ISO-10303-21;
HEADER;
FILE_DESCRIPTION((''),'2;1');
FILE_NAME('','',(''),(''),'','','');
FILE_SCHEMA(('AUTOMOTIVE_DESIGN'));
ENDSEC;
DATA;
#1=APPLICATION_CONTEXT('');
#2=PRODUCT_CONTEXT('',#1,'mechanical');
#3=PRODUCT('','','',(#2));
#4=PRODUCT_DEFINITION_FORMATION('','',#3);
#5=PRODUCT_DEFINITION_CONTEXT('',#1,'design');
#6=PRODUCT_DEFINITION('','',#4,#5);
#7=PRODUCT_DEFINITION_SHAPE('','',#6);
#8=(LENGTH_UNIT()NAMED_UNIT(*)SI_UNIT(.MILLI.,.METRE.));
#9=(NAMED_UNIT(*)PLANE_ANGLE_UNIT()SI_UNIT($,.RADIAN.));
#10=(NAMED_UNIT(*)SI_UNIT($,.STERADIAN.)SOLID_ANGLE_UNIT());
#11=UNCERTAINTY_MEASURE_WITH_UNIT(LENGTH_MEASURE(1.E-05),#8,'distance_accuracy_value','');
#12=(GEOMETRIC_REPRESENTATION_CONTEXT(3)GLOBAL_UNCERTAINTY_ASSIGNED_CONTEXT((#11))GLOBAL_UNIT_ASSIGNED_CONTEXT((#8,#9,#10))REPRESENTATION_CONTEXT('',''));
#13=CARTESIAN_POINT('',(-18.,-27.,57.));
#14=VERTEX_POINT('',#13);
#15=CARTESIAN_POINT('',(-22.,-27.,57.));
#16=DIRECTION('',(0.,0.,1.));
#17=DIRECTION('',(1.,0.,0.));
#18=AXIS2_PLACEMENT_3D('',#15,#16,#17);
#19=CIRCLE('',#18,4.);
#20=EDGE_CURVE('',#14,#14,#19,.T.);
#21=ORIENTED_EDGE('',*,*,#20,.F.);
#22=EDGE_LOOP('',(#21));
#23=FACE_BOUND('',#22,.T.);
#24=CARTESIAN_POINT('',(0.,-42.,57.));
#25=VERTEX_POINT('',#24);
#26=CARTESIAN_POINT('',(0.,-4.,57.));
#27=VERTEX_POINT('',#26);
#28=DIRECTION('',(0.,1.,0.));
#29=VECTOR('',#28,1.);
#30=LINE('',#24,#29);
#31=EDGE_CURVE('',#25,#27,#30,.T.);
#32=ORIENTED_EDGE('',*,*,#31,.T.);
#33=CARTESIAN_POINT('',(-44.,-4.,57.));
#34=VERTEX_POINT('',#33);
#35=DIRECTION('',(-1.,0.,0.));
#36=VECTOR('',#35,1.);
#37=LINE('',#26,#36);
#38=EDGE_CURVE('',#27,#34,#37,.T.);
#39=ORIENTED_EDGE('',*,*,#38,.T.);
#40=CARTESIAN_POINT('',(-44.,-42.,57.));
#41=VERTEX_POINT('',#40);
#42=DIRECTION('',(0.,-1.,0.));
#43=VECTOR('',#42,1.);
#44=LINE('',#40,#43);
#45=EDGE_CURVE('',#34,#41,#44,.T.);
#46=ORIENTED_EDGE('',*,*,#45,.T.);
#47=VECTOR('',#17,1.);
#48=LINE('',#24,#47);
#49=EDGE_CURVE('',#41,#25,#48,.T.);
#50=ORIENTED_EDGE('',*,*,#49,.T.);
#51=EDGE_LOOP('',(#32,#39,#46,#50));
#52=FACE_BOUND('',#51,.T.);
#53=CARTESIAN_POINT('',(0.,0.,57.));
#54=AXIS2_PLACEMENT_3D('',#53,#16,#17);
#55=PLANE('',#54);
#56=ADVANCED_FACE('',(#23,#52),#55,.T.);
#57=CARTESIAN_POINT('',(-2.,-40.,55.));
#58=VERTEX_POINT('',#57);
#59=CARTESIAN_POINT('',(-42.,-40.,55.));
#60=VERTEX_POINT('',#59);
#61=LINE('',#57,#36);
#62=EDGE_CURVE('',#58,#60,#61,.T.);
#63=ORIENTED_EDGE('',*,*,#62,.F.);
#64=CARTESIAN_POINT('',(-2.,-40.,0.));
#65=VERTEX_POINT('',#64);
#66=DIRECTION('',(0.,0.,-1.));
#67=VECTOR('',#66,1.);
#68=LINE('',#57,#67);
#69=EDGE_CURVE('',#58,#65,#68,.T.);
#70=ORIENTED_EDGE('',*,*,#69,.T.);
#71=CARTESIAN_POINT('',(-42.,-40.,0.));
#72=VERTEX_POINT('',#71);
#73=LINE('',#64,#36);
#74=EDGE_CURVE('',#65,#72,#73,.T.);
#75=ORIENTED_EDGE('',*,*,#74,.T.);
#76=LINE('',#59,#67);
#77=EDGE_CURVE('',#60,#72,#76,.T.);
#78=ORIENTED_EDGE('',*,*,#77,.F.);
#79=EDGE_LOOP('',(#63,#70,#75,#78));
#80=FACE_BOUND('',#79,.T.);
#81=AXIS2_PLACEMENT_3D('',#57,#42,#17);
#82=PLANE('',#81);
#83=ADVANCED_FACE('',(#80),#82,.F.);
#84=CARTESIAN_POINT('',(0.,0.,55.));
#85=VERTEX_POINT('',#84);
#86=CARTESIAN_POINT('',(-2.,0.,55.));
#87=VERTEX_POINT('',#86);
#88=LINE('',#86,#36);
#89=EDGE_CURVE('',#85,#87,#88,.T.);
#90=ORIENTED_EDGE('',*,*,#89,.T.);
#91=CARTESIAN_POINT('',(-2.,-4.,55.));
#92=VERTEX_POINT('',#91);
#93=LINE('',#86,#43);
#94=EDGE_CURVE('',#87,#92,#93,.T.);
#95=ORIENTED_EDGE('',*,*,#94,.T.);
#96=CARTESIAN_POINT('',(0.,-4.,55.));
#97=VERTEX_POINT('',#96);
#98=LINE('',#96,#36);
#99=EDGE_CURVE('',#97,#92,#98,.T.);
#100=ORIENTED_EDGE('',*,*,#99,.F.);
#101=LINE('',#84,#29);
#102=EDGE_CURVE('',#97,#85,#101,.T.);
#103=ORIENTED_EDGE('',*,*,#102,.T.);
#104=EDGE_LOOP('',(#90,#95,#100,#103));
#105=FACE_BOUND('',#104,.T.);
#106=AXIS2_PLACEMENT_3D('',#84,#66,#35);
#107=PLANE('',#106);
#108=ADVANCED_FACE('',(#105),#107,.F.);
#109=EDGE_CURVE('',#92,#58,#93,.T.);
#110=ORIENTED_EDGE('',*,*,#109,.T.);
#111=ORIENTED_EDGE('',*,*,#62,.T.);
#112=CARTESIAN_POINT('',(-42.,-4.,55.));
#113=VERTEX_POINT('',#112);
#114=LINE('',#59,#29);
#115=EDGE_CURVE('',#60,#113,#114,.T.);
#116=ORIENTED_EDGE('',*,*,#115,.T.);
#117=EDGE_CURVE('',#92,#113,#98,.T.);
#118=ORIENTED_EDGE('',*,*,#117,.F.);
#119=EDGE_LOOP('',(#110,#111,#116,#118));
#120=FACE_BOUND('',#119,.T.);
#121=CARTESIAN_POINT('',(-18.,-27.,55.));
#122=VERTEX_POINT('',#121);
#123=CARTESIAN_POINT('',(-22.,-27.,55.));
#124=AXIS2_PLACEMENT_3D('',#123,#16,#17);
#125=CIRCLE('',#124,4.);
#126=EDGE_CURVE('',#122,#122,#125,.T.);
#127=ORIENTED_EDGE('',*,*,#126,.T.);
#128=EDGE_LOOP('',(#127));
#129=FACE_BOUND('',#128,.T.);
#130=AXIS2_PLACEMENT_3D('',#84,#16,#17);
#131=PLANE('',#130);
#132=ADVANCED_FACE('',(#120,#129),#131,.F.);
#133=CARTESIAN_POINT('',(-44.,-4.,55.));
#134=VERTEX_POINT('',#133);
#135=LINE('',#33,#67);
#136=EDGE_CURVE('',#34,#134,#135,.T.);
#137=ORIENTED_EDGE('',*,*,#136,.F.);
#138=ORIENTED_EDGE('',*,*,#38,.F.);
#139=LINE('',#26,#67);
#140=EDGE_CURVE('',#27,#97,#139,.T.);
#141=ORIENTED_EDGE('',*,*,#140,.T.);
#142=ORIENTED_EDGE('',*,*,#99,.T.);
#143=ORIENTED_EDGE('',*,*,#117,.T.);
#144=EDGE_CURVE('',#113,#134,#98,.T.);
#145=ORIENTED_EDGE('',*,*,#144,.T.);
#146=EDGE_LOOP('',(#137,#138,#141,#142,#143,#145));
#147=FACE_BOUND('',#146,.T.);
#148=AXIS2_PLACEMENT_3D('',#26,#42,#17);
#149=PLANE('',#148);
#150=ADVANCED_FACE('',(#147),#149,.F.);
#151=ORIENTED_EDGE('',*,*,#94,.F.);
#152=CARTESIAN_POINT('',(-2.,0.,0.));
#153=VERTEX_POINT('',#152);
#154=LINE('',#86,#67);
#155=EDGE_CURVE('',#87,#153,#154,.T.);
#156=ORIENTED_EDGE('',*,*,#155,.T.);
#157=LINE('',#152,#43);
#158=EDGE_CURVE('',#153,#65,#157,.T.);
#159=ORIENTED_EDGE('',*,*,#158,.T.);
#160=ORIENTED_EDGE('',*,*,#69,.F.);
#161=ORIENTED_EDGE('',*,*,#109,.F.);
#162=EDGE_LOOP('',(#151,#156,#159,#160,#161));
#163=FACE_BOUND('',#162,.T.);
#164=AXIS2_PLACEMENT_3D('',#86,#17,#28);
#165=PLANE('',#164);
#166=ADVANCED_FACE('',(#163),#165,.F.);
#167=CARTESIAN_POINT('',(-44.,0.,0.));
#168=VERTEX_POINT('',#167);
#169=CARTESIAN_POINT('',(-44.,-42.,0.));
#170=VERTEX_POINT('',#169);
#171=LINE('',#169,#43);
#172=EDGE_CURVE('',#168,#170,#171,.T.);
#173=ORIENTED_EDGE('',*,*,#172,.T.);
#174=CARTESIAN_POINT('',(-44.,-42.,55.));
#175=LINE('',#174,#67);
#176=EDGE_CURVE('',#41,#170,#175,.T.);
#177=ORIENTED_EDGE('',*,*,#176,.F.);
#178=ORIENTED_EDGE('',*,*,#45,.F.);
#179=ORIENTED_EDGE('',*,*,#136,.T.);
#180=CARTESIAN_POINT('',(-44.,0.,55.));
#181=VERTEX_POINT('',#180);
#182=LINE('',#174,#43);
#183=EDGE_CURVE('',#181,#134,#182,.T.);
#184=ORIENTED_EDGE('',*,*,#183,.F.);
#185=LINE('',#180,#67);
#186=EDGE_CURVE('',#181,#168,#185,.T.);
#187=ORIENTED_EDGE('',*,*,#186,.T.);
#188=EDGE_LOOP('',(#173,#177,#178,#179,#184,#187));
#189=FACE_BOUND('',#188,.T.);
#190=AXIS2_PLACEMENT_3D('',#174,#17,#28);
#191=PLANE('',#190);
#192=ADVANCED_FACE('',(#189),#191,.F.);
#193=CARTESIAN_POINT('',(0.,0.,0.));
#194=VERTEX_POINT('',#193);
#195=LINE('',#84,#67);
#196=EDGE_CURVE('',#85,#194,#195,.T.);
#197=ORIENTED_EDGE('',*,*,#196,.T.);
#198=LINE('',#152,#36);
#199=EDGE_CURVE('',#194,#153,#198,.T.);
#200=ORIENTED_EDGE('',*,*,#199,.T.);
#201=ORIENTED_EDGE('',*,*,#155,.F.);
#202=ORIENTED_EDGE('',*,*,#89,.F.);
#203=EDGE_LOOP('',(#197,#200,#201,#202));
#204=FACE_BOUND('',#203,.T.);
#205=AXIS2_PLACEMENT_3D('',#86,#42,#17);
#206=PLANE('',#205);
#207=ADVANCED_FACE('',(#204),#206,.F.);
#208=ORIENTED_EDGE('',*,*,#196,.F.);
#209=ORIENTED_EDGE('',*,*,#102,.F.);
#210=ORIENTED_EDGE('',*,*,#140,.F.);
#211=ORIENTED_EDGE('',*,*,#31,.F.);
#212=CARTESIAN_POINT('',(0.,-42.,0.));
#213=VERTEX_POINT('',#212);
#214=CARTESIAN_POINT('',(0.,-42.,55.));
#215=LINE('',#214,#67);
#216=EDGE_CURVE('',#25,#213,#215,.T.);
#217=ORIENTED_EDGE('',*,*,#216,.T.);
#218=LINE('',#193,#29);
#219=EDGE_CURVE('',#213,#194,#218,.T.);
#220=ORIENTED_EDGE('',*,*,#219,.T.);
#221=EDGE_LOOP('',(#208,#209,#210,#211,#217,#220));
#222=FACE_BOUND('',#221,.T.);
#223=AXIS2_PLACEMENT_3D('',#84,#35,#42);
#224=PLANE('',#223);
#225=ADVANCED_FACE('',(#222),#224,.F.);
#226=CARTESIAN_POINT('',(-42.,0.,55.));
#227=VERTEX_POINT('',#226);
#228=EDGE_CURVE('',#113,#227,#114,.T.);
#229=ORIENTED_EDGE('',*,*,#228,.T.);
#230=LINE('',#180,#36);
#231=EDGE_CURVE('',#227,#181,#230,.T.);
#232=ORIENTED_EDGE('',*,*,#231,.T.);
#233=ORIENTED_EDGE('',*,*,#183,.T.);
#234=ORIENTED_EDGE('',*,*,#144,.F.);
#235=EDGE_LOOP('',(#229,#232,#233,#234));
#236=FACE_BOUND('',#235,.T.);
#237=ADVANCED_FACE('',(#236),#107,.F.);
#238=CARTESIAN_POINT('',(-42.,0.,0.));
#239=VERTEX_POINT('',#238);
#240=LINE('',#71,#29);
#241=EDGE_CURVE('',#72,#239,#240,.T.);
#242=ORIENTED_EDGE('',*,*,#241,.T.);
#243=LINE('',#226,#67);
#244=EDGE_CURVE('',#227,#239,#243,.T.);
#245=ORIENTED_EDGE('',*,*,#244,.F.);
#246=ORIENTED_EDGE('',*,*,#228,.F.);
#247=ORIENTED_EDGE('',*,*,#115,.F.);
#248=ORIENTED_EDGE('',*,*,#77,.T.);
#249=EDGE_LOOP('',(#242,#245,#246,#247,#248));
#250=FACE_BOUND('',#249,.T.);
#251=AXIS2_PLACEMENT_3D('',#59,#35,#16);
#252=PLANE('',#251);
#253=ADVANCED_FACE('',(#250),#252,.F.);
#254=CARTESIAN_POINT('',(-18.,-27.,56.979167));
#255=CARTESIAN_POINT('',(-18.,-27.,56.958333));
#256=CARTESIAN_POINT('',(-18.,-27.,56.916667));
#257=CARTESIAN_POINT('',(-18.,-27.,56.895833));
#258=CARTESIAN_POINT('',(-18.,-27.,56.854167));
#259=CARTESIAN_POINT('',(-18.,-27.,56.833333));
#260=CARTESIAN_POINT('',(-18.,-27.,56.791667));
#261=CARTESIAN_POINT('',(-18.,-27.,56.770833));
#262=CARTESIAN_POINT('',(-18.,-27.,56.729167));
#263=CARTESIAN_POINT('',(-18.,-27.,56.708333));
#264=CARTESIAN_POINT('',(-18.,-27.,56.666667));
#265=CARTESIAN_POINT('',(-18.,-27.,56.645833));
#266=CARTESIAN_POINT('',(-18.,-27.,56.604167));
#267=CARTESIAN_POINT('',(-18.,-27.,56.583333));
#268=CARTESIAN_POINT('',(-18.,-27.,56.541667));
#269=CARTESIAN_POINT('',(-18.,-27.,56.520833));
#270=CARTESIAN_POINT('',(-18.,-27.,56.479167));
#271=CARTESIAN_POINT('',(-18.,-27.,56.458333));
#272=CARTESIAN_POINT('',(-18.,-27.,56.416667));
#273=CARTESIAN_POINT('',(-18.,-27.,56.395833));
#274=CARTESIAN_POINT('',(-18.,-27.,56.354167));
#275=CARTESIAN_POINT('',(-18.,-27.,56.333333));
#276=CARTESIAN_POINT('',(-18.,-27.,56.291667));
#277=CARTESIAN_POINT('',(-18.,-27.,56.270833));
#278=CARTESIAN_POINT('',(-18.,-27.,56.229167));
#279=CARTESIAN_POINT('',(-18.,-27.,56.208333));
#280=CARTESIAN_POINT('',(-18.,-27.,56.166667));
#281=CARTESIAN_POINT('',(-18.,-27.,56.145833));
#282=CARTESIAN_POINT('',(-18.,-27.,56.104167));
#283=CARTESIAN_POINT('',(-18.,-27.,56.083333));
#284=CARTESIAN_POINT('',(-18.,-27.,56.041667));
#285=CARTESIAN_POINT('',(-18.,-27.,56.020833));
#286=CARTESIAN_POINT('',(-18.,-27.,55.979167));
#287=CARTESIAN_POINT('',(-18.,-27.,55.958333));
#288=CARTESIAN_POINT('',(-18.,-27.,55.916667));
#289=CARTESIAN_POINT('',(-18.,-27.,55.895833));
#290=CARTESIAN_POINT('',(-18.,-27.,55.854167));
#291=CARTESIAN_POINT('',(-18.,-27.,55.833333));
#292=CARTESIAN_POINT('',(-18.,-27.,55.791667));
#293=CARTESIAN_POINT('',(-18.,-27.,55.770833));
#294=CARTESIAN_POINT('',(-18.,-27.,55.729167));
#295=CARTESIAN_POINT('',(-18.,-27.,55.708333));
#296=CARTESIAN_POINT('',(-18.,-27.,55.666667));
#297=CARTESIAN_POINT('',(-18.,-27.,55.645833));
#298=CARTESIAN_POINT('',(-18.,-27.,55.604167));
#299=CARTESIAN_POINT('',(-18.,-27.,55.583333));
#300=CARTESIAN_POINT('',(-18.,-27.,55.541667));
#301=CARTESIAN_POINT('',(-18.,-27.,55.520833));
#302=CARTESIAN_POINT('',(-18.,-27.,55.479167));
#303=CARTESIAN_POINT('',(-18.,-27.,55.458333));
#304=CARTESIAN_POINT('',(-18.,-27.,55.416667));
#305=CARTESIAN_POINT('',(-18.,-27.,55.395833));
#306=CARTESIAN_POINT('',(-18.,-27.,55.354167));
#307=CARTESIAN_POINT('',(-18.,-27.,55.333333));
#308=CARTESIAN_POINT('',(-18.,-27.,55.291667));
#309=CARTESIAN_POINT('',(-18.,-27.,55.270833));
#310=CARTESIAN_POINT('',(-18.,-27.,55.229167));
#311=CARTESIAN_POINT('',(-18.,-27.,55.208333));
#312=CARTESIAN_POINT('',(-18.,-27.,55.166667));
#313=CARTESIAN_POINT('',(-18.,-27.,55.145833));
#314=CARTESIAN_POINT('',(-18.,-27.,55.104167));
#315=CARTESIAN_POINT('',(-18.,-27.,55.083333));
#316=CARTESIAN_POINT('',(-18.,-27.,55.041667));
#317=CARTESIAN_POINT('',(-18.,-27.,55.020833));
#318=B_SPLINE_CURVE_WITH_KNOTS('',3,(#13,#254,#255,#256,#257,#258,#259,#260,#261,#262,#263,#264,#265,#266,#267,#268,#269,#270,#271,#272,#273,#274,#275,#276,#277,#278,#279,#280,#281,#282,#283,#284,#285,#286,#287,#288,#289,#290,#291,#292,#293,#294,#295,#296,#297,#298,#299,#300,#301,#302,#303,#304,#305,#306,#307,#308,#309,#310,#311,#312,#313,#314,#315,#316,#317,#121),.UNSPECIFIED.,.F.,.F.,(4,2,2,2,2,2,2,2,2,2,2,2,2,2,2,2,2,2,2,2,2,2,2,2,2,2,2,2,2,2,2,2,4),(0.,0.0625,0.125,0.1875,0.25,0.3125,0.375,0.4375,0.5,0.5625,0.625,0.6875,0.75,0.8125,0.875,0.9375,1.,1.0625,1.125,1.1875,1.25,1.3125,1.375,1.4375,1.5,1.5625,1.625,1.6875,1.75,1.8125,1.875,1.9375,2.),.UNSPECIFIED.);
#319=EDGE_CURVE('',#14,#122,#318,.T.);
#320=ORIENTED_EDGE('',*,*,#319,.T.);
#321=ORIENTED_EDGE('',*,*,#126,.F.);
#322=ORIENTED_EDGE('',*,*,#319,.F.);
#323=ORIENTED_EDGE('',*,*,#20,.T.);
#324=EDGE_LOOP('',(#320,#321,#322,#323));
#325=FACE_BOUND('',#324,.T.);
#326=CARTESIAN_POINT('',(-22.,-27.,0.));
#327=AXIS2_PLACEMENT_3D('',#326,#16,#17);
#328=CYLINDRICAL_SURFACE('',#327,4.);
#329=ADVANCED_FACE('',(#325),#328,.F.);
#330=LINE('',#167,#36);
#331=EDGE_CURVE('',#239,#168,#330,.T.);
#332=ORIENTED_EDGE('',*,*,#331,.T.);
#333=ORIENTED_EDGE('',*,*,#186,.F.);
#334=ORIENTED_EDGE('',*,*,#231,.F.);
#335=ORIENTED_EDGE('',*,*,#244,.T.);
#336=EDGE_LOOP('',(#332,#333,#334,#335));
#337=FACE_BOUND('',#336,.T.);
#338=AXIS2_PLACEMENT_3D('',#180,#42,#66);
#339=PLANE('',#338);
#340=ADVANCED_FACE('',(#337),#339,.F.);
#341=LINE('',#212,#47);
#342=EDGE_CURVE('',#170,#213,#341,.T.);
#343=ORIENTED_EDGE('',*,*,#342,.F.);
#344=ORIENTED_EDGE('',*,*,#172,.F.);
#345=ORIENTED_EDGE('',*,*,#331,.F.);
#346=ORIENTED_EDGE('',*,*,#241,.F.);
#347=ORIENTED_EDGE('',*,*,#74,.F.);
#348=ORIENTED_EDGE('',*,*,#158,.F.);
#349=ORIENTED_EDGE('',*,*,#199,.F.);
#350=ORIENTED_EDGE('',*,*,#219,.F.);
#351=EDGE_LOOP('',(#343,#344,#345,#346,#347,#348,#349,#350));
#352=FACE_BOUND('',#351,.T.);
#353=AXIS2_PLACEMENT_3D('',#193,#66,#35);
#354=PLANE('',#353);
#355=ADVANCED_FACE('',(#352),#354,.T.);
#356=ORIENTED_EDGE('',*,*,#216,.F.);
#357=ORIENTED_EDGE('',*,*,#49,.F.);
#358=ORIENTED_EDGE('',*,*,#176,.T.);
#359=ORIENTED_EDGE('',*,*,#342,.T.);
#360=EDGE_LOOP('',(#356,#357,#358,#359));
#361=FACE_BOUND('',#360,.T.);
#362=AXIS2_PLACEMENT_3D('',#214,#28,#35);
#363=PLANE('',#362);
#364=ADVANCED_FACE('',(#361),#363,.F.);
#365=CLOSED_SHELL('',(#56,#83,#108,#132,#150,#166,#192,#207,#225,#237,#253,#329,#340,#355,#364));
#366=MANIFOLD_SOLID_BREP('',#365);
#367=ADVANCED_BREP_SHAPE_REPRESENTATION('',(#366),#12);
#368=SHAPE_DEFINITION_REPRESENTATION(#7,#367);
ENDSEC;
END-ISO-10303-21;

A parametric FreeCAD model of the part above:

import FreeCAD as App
import Part
import Sketcher

doc = App.newDocument("Part")
params = doc.addObject("Spreadsheet::Sheet", "Params")
for row, (alias, value) in enumerate([
    ("sketch1_width", "2 mm"),
    ("sketch1_width2", "40 mm"),
    ("sketch1_height", "42 mm"),
    ("pad1_length", "55 mm"),
    ("sketch2_width", "44 mm"),
    ("sketch2_height", "38 mm"),
    ("pad2_length", "2 mm"),
    ("sketch3_diameter", "8 mm"),
], start=1):
    params.set(f"A{row}", alias)
    params.set(f"B{row}", "=" + value)
    params.setAlias(f"B{row}", alias)

body = doc.addObject("PartDesign::Body", "Body")

sketch1 = body.newObject("Sketcher::SketchObject", "Sketch")
sketch1.AttachmentSupport = (doc.getObject("XY_Plane"), [""])
sketch1.MapMode = "FlatFace"
sketch1.addGeometry(Part.LineSegment(App.Vector(0, -42, 0), App.Vector(0, 0, 0)), False)
sketch1.addGeometry(Part.LineSegment(App.Vector(0, 0, 0), App.Vector(-2, 0, 0)), False)
sketch1.addGeometry(Part.LineSegment(App.Vector(-2, 0, 0), App.Vector(-2, -40, 0)), False)
sketch1.addGeometry(Part.LineSegment(App.Vector(-2, -40, 0), App.Vector(-42, -40, 0)), False)
sketch1.addGeometry(Part.LineSegment(App.Vector(-42, -40, 0), App.Vector(-42, 0, 0)), False)
sketch1.addGeometry(Part.LineSegment(App.Vector(-42, 0, 0), App.Vector(-44, 0, 0)), False)
sketch1.addGeometry(Part.LineSegment(App.Vector(-44, 0, 0), App.Vector(-44, -42, 0)), False)
sketch1.addGeometry(Part.LineSegment(App.Vector(-44, -42, 0), App.Vector(0, -42, 0)), False)
sketch1.addConstraint(Sketcher.Constraint("Coincident", 0, 2, 1, 1))
sketch1.addConstraint(Sketcher.Constraint("Coincident", 1, 2, 2, 1))
sketch1.addConstraint(Sketcher.Constraint("Coincident", 2, 2, 3, 1))
sketch1.addConstraint(Sketcher.Constraint("Coincident", 3, 2, 4, 1))
sketch1.addConstraint(Sketcher.Constraint("Coincident", 4, 2, 5, 1))
sketch1.addConstraint(Sketcher.Constraint("Coincident", 5, 2, 6, 1))
sketch1.addConstraint(Sketcher.Constraint("Coincident", 6, 2, 7, 1))
sketch1.addConstraint(Sketcher.Constraint("Coincident", 7, 2, 0, 1))
sketch1.addConstraint(Sketcher.Constraint("Vertical", 0))
sketch1.addConstraint(Sketcher.Constraint("Horizontal", 1))
sketch1.addConstraint(Sketcher.Constraint("Vertical", 2))
sketch1.addConstraint(Sketcher.Constraint("Horizontal", 3))
sketch1.addConstraint(Sketcher.Constraint("Vertical", 4))
sketch1.addConstraint(Sketcher.Constraint("Horizontal", 5))
sketch1.addConstraint(Sketcher.Constraint("Vertical", 6))
sketch1.addConstraint(Sketcher.Constraint("Horizontal", 7))
sketch1.addConstraint(Sketcher.Constraint("Coincident", 0, 2, -1, 1))
sketch1.addConstraint(Sketcher.Constraint("PointOnObject", 4, 2, -1))
sketch1.addConstraint(Sketcher.Constraint("Equal", 1, 5))
sketch1.addConstraint(Sketcher.Constraint("Equal", 3, 2))
sketch1.addConstraint(Sketcher.Constraint("DistanceX", 1, 2, 1, 1, 2.0))
sketch1.addConstraint(Sketcher.Constraint("DistanceX", 3, 2, 3, 1, 40.0))
sketch1.addConstraint(Sketcher.Constraint("DistanceY", 0, 1, 0, 2, 42.0))
sketch1.setExpression("Constraints[20]", "Params.sketch1_width")
sketch1.setExpression("Constraints[21]", "Params.sketch1_width2")
sketch1.setExpression("Constraints[22]", "Params.sketch1_height")
pad1 = body.newObject("PartDesign::Pad", "Pad")
pad1.Profile = sketch1
pad1.setExpression("Length", "Params.pad1_length")

sketch2 = body.newObject("Sketcher::SketchObject", "Sketch001")
sketch2.AttachmentSupport = (doc.getObject("XY_Plane"), [""])
sketch2.MapMode = "FlatFace"
sketch2.AttachmentOffset = App.Placement(App.Vector(0, 0, 55), App.Rotation())
sketch2.addGeometry(Part.LineSegment(App.Vector(-44, -4, 0), App.Vector(-44, -42, 0)), False)
sketch2.addGeometry(Part.LineSegment(App.Vector(-44, -42, 0), App.Vector(0, -42, 0)), False)
sketch2.addGeometry(Part.LineSegment(App.Vector(0, -42, 0), App.Vector(0, -4, 0)), False)
sketch2.addGeometry(Part.LineSegment(App.Vector(0, -4, 0), App.Vector(-44, -4, 0)), False)
sketch2.addConstraint(Sketcher.Constraint("Coincident", 0, 2, 1, 1))
sketch2.addConstraint(Sketcher.Constraint("Coincident", 1, 2, 2, 1))
sketch2.addConstraint(Sketcher.Constraint("Coincident", 2, 2, 3, 1))
sketch2.addConstraint(Sketcher.Constraint("Coincident", 3, 2, 0, 1))
sketch2.addConstraint(Sketcher.Constraint("Vertical", 0))
sketch2.addConstraint(Sketcher.Constraint("Horizontal", 1))
sketch2.addConstraint(Sketcher.Constraint("Vertical", 2))
sketch2.addConstraint(Sketcher.Constraint("Horizontal", 3))
sketch2.addConstraint(Sketcher.Constraint("PointOnObject", 1, 2, -2))
sketch2.addConstraint(Sketcher.Constraint("DistanceX", 1, 1, 1, 2, 44.0))
sketch2.addConstraint(Sketcher.Constraint("DistanceY", 0, 2, 0, 1, 38.0))
sketch2.addConstraint(Sketcher.Constraint("DistanceY", 0, 2, -1, 1, 42.0))
sketch2.setExpression("Constraints[9]", "Params.sketch2_width")
sketch2.setExpression("Constraints[10]", "Params.sketch2_height")
pad2 = body.newObject("PartDesign::Pad", "Pad001")
pad2.Profile = sketch2
pad2.setExpression("Length", "Params.pad2_length")

sketch3 = body.newObject("Sketcher::SketchObject", "Sketch002")
sketch3.AttachmentSupport = (doc.getObject("XY_Plane"), [""])
sketch3.MapMode = "FlatFace"
sketch3.AttachmentOffset = App.Placement(App.Vector(0, 0, 57), App.Rotation())
sketch3.addGeometry(Part.Circle(App.Vector(-22, -27, 0), App.Vector(0, 0, 1), 4), False)
sketch3.addConstraint(Sketcher.Constraint("Diameter", 0, 8.0))
sketch3.addConstraint(Sketcher.Constraint("DistanceX", 0, 3, -1, 1, 22.0))
sketch3.addConstraint(Sketcher.Constraint("DistanceY", 0, 3, -1, 1, 27.0))
sketch3.setExpression("Constraints[0]", "Params.sketch3_diameter")
pocket1 = body.newObject("PartDesign::Pocket", "Pocket")
pocket1.Profile = sketch3
pocket1.Type = "ThroughAll"
pocket1.Midplane = True

doc.recompute()
